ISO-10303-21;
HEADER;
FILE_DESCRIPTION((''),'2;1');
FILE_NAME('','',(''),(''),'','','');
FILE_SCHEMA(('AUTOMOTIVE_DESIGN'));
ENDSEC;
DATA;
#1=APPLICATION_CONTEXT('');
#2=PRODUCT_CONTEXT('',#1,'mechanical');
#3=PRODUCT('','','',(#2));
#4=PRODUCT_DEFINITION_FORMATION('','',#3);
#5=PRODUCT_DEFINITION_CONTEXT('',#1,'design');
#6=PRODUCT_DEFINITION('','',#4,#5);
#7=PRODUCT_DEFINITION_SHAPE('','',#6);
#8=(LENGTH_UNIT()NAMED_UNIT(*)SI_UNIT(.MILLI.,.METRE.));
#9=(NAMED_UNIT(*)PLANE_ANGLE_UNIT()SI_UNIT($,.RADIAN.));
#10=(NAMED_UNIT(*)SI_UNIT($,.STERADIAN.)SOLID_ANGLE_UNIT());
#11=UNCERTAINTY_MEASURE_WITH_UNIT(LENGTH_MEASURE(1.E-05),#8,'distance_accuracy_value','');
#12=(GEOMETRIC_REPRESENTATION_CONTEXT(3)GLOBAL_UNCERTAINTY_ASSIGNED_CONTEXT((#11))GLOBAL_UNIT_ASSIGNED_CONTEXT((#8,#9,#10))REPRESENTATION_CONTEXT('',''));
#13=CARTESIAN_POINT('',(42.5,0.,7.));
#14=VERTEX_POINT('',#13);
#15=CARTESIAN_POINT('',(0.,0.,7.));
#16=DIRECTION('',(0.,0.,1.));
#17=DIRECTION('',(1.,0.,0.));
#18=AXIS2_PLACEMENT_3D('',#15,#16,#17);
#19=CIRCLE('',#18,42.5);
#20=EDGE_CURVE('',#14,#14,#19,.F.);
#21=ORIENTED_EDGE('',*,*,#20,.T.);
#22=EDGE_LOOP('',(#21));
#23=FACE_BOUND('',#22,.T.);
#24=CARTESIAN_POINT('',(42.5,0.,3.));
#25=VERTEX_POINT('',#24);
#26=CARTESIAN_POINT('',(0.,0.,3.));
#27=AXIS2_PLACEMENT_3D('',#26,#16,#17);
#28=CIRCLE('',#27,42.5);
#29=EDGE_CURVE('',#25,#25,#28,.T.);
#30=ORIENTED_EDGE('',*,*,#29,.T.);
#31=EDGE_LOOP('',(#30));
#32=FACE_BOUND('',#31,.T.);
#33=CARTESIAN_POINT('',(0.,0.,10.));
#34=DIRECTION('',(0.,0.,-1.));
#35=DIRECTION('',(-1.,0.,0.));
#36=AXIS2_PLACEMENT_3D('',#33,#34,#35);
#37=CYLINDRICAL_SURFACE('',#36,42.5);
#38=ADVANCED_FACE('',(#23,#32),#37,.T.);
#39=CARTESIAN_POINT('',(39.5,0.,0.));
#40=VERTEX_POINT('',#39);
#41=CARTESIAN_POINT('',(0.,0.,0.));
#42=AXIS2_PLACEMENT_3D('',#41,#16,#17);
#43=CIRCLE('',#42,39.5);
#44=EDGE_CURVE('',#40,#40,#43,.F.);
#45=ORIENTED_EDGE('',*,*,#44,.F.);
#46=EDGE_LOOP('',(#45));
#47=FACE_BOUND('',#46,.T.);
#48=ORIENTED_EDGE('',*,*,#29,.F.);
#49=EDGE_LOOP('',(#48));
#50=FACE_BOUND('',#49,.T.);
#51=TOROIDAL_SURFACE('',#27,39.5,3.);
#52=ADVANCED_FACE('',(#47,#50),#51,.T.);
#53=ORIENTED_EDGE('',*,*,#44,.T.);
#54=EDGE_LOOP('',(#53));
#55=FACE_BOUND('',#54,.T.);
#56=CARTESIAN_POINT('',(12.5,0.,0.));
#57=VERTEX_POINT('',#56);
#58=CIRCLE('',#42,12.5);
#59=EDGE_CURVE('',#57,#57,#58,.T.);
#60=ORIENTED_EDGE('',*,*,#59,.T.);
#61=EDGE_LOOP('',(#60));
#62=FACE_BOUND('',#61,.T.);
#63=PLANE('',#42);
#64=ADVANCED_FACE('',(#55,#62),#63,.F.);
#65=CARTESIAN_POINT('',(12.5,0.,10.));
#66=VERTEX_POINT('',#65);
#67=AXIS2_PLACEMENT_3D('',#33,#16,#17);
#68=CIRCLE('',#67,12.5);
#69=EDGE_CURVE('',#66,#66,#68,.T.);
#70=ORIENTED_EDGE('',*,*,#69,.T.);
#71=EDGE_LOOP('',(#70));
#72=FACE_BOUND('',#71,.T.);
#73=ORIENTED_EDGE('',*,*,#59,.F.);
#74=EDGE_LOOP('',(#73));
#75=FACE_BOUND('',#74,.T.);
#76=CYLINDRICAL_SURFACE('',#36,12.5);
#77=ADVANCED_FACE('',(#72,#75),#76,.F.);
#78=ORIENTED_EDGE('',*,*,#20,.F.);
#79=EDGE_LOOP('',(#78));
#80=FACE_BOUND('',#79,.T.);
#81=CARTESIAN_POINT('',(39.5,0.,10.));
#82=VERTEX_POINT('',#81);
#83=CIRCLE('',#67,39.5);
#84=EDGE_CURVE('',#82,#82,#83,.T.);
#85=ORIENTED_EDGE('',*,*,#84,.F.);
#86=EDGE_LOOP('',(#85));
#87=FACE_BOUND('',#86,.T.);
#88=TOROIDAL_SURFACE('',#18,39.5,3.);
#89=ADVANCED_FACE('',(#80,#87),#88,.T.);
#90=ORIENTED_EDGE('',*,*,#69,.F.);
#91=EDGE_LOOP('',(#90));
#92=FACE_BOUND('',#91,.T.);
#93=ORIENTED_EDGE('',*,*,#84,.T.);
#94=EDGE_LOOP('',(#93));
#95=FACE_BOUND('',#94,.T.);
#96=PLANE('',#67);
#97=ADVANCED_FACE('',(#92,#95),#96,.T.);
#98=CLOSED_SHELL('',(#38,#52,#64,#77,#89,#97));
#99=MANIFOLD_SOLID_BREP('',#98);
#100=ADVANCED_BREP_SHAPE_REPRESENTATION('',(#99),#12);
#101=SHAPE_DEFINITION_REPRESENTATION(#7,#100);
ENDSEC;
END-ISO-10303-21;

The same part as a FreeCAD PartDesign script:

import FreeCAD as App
import Part
import Sketcher

V = App.Vector


def edges_at(feature, points):
    """Names of the edges that pass closest to the given points."""
    edges = feature.Shape.Edges
    near = lambda p: min(range(len(edges)), key=lambda i: edges[i].distToShape(Part.Vertex(*p))[0])
    return sorted({f"Edge{near(p) + 1}" for p in points})

doc = App.newDocument("Part")
body = doc.addObject("PartDesign::Body", "Body")

sketch1 = body.newObject("Sketcher::SketchObject", "Sketch")
sketch1.AttachmentSupport = (doc.getObject("XY_Plane"), [""])
sketch1.MapMode = "FlatFace"
sketch1.addGeometry([
    Part.Circle(V(0, 0, 0), V(0, 0, 1), 42.5),
    Part.Circle(V(0, 0, 0), V(0, 0, 1), 12.5),
], False)
sketch1.addConstraint([
    Sketcher.Constraint("Coincident", 0, 3, -1, 1),
    Sketcher.Constraint("Coincident", 1, 3, -1, 1),
    Sketcher.Constraint("Diameter", 0, 85.0),
    Sketcher.Constraint("Diameter", 1, 25.0),
])
pad1 = body.newObject("PartDesign::Pad", "Pad")
pad1.Profile = sketch1
pad1.Length = 10
doc.recompute()

fillet = body.newObject("PartDesign::Fillet", "Fillet")
fillet.Base = (pad1, edges_at(pad1, [(-42.5, 0, 0), (-42.5, 0, 10)]))
fillet.Radius = 3

doc.recompute()
